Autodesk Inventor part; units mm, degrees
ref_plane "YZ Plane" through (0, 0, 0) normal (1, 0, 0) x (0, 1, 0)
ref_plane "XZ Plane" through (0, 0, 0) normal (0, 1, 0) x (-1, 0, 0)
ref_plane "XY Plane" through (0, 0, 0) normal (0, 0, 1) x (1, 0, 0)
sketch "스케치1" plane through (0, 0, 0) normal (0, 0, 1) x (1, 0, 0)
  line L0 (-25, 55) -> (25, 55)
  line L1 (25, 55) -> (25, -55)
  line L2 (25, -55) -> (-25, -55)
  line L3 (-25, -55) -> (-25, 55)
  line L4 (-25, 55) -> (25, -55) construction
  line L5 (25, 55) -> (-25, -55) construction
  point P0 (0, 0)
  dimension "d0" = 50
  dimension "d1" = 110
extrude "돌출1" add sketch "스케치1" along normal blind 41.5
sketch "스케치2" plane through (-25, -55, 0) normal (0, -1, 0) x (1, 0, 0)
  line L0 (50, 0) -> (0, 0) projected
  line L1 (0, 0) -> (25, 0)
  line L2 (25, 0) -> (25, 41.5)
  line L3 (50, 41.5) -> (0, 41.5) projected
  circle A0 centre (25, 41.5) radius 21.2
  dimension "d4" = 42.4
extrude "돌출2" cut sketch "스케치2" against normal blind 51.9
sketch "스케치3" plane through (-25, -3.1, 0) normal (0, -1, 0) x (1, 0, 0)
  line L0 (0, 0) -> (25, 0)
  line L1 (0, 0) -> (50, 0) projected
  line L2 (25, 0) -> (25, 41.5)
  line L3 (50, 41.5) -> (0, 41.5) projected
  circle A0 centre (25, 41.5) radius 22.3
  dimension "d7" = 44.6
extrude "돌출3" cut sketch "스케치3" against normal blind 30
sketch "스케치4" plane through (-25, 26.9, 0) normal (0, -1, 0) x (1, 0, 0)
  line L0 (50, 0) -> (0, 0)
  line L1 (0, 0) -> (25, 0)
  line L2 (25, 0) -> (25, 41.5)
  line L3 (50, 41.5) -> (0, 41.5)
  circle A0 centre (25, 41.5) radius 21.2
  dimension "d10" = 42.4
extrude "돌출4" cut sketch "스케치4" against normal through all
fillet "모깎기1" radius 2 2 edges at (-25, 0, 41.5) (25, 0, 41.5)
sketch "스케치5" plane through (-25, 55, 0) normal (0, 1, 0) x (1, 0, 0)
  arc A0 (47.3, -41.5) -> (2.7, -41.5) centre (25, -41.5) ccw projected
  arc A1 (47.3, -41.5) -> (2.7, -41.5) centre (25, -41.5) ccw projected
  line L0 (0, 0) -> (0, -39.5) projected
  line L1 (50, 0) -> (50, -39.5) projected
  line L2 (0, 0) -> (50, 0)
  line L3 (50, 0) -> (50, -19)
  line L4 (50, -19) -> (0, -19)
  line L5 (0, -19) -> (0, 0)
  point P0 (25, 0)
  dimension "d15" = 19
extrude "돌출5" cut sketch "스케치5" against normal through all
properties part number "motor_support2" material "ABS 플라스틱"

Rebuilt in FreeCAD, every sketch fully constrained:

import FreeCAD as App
import Part
import Sketcher

V = App.Vector
Q = App.Units.Quantity


def edges_at(feature, points):
    """Names of the edges that pass closest to the given points."""
    edges = feature.Shape.Edges
    near = lambda p: min(range(len(edges)), key=lambda i: edges[i].distToShape(Part.Vertex(*p))[0])
    return sorted({f"Edge{near(p) + 1}" for p in points})

doc = App.newDocument("Part")
body = doc.addObject("PartDesign::Body", "Body")

# Sketch on XY plane
sketch1 = doc.addObject("Sketcher::SketchObject", "Sketch")
body.addObject(sketch1)
sketch1.AttachmentSupport = (doc.XY_Plane, [""])
sketch1.MapMode = "FlatFace"
sketch1.addGeometry([
    Part.LineSegment(V(25, 55, 0), V(-25, 55, 0)),
    Part.LineSegment(V(-25, 55, 0), V(-25, -55, 0)),
    Part.LineSegment(V(-25, -55, 0), V(25, -55, 0)),
    Part.LineSegment(V(25, -55, 0), V(25, 55, 0)),
], False)
sketch1.addConstraint([
    Sketcher.Constraint("Coincident", 0, 2, 1, 1),
    Sketcher.Constraint("Coincident", 1, 2, 2, 1),
    Sketcher.Constraint("Coincident", 2, 2, 3, 1),
    Sketcher.Constraint("Coincident", 3, 2, 0, 1),
    Sketcher.Constraint("Horizontal", 0),
    Sketcher.Constraint("Vertical", 1),
    Sketcher.Constraint("Horizontal", 2),
    Sketcher.Constraint("Vertical", 3),
    Sketcher.Constraint("Symmetric", 0, 2, 2, 2, -1, 1),
    Sketcher.Constraint("DistanceX", 0, 2, 0, 1, Q("50 mm")),
    Sketcher.Constraint("DistanceY", 1, 2, 1, 1, Q("110 mm")),
])
pad1 = doc.addObject("PartDesign::Pad", "Pad")
body.addObject(pad1)
pad1.Profile = sketch1
pad1.Length = 41.5

# Sketch on XZ plane
sketch2 = doc.addObject("Sketcher::SketchObject", "Sketch001")
body.addObject(sketch2)
sketch2.AttachmentSupport = (doc.XZ_Plane, [""])
sketch2.MapMode = "FlatFace"
sketch2.AttachmentOffset = App.Placement(V(0, 0, 55), App.Rotation())
sketch2.addGeometry(Part.Circle(V(0, 41.5, 0), V(0, 0, 1), 21.2), False)
sketch2.addConstraint([
    Sketcher.Constraint("PointOnObject", 0, 3, -2),
    Sketcher.Constraint("Diameter", 0, Q("42.4 mm")),
    Sketcher.Constraint("DistanceY", -1, 1, 0, 3, Q("41.5 mm")),
])
pocket1 = doc.addObject("PartDesign::Pocket", "Pocket")
body.addObject(pocket1)
pocket1.Profile = sketch2
pocket1.Length = 51.9

# Sketch on XZ plane
sketch3 = doc.addObject("Sketcher::SketchObject", "Sketch002")
body.addObject(sketch3)
sketch3.AttachmentSupport = (doc.XZ_Plane, [""])
sketch3.MapMode = "FlatFace"
sketch3.AttachmentOffset = App.Placement(V(0, 0, 3.1), App.Rotation())
sketch3.addGeometry(Part.Circle(V(0, 41.5, 0), V(0, 0, 1), 22.3), False)
sketch3.addConstraint([
    Sketcher.Constraint("PointOnObject", 0, 3, -2),
    Sketcher.Constraint("Diameter", 0, Q("44.6 mm")),
    Sketcher.Constraint("DistanceY", -1, 1, 0, 3, Q("41.5 mm")),
])
pocket2 = doc.addObject("PartDesign::Pocket", "Pocket001")
body.addObject(pocket2)
pocket2.Profile = sketch3
pocket2.Length = 30

# Sketch on XZ plane
sketch4 = doc.addObject("Sketcher::SketchObject", "Sketch003")
body.addObject(sketch4)
sketch4.AttachmentSupport = (doc.XZ_Plane, [""])
sketch4.MapMode = "FlatFace"
sketch4.AttachmentOffset = App.Placement(V(0, 0, -26.9), App.Rotation())
sketch4.addGeometry(Part.Circle(V(0, 41.5, 0), V(0, 0, 1), 21.2), False)
sketch4.addConstraint([
    Sketcher.Constraint("PointOnObject", 0, 3, -2),
    Sketcher.Constraint("Diameter", 0, Q("42.4 mm")),
    Sketcher.Constraint("DistanceY", -1, 1, 0, 3, Q("41.5 mm")),
])
pocket3 = doc.addObject("PartDesign::Pocket", "Pocket002")
body.addObject(pocket3)
pocket3.Profile = sketch4
pocket3.Type = "ThroughAll"
doc.recompute()

fillet = doc.addObject("PartDesign::Fillet", "Fillet")
body.addObject(fillet)
fillet.Base = (pocket3, edges_at(pocket3, [(-25, 0, 41.5), (25, 0, 41.5)]))
fillet.Radius = 2

# Sketch on XZ plane
sketch5 = doc.addObject("Sketcher::SketchObject", "Sketch004")
body.addObject(sketch5)
sketch5.AttachmentSupport = (doc.XZ_Plane, [""])
sketch5.MapMode = "FlatFace"
sketch5.AttachmentOffset = App.Placement(V(0, 0, -55), App.Rotation())
sketch5.addGeometry([
    Part.LineSegment(V(25, 0, 0), V(-25, 0, 0)),
    Part.LineSegment(V(-25, 0, 0), V(-25, 19, 0)),
    Part.LineSegment(V(-25, 19, 0), V(25, 19, 0)),
    Part.LineSegment(V(25, 19, 0), V(25, 0, 0)),
], False)
sketch5.addConstraint([
    Sketcher.Constraint("Coincident", 0, 2, 1, 1),
    Sketcher.Constraint("Coincident", 1, 2, 2, 1),
    Sketcher.Constraint("Coincident", 2, 2, 3, 1),
    Sketcher.Constraint("Coincident", 3, 2, 0, 1),
    Sketcher.Constraint("Horizontal", 0),
    Sketcher.Constraint("Vertical", 1),
    Sketcher.Constraint("Horizontal", 2),
    Sketcher.Constraint("Vertical", 3),
    Sketcher.Constraint("Symmetric", 0, 2, 3, 2, -1, 1),
    Sketcher.Constraint("DistanceY", 1, 1, 1, 2, Q("19 mm")),
    Sketcher.Constraint("DistanceX", 0, 2, 0, 1, Q("50 mm")),
])
pocket4 = doc.addObject("PartDesign::Pocket", "Pocket003")
body.addObject(pocket4)
pocket4.Profile = sketch5
pocket4.Type = "ThroughAll"
pocket4.Reversed = True

doc.recompute()
